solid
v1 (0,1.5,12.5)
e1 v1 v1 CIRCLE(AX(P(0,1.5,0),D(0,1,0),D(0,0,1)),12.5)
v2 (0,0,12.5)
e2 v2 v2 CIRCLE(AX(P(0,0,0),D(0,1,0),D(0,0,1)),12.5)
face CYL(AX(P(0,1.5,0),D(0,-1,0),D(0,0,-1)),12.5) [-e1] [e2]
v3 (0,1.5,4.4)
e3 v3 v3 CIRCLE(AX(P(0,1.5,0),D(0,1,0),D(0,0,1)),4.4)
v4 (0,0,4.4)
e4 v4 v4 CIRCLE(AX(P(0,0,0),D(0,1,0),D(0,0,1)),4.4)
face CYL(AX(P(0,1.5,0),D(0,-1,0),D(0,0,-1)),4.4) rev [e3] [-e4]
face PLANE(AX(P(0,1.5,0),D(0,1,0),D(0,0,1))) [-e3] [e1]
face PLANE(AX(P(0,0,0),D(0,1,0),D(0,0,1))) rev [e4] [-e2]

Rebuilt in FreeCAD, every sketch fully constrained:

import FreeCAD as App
import Part
import Sketcher

V = App.Vector
Q = App.Units.Quantity

doc = App.newDocument("Part")
body = doc.addObject("PartDesign::Body", "Body")

# Sketch on XZ plane
sketch1 = body.newObject("Sketcher::SketchObject", "Sketch")
sketch1.AttachmentSupport = (doc.getObject("XZ_Plane"), [""])
sketch1.MapMode = "FlatFace"
sketch1.addGeometry(Part.Circle(V(0, 0, 0), V(0, 0, 1), 12.5), False)
sketch1.addGeometry(Part.Circle(V(0, 0, 0), V(0, 0, 1), 4.4), False)
sketch1.addConstraint(Sketcher.Constraint("Coincident", 0, 3, -1, 1))
sketch1.addConstraint(Sketcher.Constraint("Coincident", 1, 3, -1, 1))
sketch1.addConstraint(Sketcher.Constraint("Diameter", 0, Q("25 mm")))
sketch1.addConstraint(Sketcher.Constraint("Diameter", 1, Q("8.8 mm")))
pad1 = body.newObject("PartDesign::Pad", "Pad")
pad1.Profile = sketch1
pad1.Length = 1.5
pad1.Reversed = True

doc.recompute()
